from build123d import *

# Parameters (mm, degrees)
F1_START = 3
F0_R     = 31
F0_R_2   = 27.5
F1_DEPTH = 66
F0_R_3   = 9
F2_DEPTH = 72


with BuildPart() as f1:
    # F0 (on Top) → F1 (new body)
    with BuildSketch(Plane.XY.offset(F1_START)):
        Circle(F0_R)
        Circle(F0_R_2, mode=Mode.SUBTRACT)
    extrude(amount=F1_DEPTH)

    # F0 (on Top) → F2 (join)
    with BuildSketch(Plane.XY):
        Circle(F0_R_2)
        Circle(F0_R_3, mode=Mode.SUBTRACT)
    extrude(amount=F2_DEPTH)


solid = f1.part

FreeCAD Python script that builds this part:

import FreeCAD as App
import Part
import Sketcher

V = App.Vector

doc = App.newDocument("Part")
body = doc.addObject("PartDesign::Body", "Body")

sketch1 = body.newObject("Sketcher::SketchObject", "Sketch")
sketch1.AttachmentSupport = (doc.getObject("XY_Plane"), [""])
sketch1.MapMode = "FlatFace"
sketch1.AttachmentOffset = App.Placement(V(0, 0, 3), App.Rotation())
sketch1.addGeometry([
    Part.Circle(V(0, 0, 0), V(0, 0, 1), 31),
    Part.Circle(V(0, 0, 0), V(0, 0, 1), 28),
], False)
sketch1.addConstraint([
    Sketcher.Constraint("Coincident", 0, 3, -1, 1),
    Sketcher.Constraint("Coincident", 1, 3, -1, 1),
    Sketcher.Constraint("Diameter", 0, 62.0),
    Sketcher.Constraint("Diameter", 1, 55.0),
])
pad1 = body.newObject("PartDesign::Pad", "Pad")
pad1.Profile = sketch1
pad1.Length = 66

sketch2 = body.newObject("Sketcher::SketchObject", "Sketch001")
sketch2.AttachmentSupport = (doc.getObject("XY_Plane"), [""])
sketch2.MapMode = "FlatFace"
sketch2.addGeometry([
    Part.Circle(V(0, 0, 0), V(0, 0, 1), 28),
    Part.Circle(V(0, 0, 0), V(0, 0, 1), 9),
], False)
sketch2.addConstraint([
    Sketcher.Constraint("Coincident", 0, 3, -1, 1),
    Sketcher.Constraint("Coincident", 1, 3, -1, 1),
    Sketcher.Constraint("Diameter", 0, 55.0),
    Sketcher.Constraint("Diameter", 1, 18.0),
])
pad2 = body.newObject("PartDesign::Pad", "Pad001")
pad2.Profile = sketch2
pad2.Length = 72

doc.recompute()
